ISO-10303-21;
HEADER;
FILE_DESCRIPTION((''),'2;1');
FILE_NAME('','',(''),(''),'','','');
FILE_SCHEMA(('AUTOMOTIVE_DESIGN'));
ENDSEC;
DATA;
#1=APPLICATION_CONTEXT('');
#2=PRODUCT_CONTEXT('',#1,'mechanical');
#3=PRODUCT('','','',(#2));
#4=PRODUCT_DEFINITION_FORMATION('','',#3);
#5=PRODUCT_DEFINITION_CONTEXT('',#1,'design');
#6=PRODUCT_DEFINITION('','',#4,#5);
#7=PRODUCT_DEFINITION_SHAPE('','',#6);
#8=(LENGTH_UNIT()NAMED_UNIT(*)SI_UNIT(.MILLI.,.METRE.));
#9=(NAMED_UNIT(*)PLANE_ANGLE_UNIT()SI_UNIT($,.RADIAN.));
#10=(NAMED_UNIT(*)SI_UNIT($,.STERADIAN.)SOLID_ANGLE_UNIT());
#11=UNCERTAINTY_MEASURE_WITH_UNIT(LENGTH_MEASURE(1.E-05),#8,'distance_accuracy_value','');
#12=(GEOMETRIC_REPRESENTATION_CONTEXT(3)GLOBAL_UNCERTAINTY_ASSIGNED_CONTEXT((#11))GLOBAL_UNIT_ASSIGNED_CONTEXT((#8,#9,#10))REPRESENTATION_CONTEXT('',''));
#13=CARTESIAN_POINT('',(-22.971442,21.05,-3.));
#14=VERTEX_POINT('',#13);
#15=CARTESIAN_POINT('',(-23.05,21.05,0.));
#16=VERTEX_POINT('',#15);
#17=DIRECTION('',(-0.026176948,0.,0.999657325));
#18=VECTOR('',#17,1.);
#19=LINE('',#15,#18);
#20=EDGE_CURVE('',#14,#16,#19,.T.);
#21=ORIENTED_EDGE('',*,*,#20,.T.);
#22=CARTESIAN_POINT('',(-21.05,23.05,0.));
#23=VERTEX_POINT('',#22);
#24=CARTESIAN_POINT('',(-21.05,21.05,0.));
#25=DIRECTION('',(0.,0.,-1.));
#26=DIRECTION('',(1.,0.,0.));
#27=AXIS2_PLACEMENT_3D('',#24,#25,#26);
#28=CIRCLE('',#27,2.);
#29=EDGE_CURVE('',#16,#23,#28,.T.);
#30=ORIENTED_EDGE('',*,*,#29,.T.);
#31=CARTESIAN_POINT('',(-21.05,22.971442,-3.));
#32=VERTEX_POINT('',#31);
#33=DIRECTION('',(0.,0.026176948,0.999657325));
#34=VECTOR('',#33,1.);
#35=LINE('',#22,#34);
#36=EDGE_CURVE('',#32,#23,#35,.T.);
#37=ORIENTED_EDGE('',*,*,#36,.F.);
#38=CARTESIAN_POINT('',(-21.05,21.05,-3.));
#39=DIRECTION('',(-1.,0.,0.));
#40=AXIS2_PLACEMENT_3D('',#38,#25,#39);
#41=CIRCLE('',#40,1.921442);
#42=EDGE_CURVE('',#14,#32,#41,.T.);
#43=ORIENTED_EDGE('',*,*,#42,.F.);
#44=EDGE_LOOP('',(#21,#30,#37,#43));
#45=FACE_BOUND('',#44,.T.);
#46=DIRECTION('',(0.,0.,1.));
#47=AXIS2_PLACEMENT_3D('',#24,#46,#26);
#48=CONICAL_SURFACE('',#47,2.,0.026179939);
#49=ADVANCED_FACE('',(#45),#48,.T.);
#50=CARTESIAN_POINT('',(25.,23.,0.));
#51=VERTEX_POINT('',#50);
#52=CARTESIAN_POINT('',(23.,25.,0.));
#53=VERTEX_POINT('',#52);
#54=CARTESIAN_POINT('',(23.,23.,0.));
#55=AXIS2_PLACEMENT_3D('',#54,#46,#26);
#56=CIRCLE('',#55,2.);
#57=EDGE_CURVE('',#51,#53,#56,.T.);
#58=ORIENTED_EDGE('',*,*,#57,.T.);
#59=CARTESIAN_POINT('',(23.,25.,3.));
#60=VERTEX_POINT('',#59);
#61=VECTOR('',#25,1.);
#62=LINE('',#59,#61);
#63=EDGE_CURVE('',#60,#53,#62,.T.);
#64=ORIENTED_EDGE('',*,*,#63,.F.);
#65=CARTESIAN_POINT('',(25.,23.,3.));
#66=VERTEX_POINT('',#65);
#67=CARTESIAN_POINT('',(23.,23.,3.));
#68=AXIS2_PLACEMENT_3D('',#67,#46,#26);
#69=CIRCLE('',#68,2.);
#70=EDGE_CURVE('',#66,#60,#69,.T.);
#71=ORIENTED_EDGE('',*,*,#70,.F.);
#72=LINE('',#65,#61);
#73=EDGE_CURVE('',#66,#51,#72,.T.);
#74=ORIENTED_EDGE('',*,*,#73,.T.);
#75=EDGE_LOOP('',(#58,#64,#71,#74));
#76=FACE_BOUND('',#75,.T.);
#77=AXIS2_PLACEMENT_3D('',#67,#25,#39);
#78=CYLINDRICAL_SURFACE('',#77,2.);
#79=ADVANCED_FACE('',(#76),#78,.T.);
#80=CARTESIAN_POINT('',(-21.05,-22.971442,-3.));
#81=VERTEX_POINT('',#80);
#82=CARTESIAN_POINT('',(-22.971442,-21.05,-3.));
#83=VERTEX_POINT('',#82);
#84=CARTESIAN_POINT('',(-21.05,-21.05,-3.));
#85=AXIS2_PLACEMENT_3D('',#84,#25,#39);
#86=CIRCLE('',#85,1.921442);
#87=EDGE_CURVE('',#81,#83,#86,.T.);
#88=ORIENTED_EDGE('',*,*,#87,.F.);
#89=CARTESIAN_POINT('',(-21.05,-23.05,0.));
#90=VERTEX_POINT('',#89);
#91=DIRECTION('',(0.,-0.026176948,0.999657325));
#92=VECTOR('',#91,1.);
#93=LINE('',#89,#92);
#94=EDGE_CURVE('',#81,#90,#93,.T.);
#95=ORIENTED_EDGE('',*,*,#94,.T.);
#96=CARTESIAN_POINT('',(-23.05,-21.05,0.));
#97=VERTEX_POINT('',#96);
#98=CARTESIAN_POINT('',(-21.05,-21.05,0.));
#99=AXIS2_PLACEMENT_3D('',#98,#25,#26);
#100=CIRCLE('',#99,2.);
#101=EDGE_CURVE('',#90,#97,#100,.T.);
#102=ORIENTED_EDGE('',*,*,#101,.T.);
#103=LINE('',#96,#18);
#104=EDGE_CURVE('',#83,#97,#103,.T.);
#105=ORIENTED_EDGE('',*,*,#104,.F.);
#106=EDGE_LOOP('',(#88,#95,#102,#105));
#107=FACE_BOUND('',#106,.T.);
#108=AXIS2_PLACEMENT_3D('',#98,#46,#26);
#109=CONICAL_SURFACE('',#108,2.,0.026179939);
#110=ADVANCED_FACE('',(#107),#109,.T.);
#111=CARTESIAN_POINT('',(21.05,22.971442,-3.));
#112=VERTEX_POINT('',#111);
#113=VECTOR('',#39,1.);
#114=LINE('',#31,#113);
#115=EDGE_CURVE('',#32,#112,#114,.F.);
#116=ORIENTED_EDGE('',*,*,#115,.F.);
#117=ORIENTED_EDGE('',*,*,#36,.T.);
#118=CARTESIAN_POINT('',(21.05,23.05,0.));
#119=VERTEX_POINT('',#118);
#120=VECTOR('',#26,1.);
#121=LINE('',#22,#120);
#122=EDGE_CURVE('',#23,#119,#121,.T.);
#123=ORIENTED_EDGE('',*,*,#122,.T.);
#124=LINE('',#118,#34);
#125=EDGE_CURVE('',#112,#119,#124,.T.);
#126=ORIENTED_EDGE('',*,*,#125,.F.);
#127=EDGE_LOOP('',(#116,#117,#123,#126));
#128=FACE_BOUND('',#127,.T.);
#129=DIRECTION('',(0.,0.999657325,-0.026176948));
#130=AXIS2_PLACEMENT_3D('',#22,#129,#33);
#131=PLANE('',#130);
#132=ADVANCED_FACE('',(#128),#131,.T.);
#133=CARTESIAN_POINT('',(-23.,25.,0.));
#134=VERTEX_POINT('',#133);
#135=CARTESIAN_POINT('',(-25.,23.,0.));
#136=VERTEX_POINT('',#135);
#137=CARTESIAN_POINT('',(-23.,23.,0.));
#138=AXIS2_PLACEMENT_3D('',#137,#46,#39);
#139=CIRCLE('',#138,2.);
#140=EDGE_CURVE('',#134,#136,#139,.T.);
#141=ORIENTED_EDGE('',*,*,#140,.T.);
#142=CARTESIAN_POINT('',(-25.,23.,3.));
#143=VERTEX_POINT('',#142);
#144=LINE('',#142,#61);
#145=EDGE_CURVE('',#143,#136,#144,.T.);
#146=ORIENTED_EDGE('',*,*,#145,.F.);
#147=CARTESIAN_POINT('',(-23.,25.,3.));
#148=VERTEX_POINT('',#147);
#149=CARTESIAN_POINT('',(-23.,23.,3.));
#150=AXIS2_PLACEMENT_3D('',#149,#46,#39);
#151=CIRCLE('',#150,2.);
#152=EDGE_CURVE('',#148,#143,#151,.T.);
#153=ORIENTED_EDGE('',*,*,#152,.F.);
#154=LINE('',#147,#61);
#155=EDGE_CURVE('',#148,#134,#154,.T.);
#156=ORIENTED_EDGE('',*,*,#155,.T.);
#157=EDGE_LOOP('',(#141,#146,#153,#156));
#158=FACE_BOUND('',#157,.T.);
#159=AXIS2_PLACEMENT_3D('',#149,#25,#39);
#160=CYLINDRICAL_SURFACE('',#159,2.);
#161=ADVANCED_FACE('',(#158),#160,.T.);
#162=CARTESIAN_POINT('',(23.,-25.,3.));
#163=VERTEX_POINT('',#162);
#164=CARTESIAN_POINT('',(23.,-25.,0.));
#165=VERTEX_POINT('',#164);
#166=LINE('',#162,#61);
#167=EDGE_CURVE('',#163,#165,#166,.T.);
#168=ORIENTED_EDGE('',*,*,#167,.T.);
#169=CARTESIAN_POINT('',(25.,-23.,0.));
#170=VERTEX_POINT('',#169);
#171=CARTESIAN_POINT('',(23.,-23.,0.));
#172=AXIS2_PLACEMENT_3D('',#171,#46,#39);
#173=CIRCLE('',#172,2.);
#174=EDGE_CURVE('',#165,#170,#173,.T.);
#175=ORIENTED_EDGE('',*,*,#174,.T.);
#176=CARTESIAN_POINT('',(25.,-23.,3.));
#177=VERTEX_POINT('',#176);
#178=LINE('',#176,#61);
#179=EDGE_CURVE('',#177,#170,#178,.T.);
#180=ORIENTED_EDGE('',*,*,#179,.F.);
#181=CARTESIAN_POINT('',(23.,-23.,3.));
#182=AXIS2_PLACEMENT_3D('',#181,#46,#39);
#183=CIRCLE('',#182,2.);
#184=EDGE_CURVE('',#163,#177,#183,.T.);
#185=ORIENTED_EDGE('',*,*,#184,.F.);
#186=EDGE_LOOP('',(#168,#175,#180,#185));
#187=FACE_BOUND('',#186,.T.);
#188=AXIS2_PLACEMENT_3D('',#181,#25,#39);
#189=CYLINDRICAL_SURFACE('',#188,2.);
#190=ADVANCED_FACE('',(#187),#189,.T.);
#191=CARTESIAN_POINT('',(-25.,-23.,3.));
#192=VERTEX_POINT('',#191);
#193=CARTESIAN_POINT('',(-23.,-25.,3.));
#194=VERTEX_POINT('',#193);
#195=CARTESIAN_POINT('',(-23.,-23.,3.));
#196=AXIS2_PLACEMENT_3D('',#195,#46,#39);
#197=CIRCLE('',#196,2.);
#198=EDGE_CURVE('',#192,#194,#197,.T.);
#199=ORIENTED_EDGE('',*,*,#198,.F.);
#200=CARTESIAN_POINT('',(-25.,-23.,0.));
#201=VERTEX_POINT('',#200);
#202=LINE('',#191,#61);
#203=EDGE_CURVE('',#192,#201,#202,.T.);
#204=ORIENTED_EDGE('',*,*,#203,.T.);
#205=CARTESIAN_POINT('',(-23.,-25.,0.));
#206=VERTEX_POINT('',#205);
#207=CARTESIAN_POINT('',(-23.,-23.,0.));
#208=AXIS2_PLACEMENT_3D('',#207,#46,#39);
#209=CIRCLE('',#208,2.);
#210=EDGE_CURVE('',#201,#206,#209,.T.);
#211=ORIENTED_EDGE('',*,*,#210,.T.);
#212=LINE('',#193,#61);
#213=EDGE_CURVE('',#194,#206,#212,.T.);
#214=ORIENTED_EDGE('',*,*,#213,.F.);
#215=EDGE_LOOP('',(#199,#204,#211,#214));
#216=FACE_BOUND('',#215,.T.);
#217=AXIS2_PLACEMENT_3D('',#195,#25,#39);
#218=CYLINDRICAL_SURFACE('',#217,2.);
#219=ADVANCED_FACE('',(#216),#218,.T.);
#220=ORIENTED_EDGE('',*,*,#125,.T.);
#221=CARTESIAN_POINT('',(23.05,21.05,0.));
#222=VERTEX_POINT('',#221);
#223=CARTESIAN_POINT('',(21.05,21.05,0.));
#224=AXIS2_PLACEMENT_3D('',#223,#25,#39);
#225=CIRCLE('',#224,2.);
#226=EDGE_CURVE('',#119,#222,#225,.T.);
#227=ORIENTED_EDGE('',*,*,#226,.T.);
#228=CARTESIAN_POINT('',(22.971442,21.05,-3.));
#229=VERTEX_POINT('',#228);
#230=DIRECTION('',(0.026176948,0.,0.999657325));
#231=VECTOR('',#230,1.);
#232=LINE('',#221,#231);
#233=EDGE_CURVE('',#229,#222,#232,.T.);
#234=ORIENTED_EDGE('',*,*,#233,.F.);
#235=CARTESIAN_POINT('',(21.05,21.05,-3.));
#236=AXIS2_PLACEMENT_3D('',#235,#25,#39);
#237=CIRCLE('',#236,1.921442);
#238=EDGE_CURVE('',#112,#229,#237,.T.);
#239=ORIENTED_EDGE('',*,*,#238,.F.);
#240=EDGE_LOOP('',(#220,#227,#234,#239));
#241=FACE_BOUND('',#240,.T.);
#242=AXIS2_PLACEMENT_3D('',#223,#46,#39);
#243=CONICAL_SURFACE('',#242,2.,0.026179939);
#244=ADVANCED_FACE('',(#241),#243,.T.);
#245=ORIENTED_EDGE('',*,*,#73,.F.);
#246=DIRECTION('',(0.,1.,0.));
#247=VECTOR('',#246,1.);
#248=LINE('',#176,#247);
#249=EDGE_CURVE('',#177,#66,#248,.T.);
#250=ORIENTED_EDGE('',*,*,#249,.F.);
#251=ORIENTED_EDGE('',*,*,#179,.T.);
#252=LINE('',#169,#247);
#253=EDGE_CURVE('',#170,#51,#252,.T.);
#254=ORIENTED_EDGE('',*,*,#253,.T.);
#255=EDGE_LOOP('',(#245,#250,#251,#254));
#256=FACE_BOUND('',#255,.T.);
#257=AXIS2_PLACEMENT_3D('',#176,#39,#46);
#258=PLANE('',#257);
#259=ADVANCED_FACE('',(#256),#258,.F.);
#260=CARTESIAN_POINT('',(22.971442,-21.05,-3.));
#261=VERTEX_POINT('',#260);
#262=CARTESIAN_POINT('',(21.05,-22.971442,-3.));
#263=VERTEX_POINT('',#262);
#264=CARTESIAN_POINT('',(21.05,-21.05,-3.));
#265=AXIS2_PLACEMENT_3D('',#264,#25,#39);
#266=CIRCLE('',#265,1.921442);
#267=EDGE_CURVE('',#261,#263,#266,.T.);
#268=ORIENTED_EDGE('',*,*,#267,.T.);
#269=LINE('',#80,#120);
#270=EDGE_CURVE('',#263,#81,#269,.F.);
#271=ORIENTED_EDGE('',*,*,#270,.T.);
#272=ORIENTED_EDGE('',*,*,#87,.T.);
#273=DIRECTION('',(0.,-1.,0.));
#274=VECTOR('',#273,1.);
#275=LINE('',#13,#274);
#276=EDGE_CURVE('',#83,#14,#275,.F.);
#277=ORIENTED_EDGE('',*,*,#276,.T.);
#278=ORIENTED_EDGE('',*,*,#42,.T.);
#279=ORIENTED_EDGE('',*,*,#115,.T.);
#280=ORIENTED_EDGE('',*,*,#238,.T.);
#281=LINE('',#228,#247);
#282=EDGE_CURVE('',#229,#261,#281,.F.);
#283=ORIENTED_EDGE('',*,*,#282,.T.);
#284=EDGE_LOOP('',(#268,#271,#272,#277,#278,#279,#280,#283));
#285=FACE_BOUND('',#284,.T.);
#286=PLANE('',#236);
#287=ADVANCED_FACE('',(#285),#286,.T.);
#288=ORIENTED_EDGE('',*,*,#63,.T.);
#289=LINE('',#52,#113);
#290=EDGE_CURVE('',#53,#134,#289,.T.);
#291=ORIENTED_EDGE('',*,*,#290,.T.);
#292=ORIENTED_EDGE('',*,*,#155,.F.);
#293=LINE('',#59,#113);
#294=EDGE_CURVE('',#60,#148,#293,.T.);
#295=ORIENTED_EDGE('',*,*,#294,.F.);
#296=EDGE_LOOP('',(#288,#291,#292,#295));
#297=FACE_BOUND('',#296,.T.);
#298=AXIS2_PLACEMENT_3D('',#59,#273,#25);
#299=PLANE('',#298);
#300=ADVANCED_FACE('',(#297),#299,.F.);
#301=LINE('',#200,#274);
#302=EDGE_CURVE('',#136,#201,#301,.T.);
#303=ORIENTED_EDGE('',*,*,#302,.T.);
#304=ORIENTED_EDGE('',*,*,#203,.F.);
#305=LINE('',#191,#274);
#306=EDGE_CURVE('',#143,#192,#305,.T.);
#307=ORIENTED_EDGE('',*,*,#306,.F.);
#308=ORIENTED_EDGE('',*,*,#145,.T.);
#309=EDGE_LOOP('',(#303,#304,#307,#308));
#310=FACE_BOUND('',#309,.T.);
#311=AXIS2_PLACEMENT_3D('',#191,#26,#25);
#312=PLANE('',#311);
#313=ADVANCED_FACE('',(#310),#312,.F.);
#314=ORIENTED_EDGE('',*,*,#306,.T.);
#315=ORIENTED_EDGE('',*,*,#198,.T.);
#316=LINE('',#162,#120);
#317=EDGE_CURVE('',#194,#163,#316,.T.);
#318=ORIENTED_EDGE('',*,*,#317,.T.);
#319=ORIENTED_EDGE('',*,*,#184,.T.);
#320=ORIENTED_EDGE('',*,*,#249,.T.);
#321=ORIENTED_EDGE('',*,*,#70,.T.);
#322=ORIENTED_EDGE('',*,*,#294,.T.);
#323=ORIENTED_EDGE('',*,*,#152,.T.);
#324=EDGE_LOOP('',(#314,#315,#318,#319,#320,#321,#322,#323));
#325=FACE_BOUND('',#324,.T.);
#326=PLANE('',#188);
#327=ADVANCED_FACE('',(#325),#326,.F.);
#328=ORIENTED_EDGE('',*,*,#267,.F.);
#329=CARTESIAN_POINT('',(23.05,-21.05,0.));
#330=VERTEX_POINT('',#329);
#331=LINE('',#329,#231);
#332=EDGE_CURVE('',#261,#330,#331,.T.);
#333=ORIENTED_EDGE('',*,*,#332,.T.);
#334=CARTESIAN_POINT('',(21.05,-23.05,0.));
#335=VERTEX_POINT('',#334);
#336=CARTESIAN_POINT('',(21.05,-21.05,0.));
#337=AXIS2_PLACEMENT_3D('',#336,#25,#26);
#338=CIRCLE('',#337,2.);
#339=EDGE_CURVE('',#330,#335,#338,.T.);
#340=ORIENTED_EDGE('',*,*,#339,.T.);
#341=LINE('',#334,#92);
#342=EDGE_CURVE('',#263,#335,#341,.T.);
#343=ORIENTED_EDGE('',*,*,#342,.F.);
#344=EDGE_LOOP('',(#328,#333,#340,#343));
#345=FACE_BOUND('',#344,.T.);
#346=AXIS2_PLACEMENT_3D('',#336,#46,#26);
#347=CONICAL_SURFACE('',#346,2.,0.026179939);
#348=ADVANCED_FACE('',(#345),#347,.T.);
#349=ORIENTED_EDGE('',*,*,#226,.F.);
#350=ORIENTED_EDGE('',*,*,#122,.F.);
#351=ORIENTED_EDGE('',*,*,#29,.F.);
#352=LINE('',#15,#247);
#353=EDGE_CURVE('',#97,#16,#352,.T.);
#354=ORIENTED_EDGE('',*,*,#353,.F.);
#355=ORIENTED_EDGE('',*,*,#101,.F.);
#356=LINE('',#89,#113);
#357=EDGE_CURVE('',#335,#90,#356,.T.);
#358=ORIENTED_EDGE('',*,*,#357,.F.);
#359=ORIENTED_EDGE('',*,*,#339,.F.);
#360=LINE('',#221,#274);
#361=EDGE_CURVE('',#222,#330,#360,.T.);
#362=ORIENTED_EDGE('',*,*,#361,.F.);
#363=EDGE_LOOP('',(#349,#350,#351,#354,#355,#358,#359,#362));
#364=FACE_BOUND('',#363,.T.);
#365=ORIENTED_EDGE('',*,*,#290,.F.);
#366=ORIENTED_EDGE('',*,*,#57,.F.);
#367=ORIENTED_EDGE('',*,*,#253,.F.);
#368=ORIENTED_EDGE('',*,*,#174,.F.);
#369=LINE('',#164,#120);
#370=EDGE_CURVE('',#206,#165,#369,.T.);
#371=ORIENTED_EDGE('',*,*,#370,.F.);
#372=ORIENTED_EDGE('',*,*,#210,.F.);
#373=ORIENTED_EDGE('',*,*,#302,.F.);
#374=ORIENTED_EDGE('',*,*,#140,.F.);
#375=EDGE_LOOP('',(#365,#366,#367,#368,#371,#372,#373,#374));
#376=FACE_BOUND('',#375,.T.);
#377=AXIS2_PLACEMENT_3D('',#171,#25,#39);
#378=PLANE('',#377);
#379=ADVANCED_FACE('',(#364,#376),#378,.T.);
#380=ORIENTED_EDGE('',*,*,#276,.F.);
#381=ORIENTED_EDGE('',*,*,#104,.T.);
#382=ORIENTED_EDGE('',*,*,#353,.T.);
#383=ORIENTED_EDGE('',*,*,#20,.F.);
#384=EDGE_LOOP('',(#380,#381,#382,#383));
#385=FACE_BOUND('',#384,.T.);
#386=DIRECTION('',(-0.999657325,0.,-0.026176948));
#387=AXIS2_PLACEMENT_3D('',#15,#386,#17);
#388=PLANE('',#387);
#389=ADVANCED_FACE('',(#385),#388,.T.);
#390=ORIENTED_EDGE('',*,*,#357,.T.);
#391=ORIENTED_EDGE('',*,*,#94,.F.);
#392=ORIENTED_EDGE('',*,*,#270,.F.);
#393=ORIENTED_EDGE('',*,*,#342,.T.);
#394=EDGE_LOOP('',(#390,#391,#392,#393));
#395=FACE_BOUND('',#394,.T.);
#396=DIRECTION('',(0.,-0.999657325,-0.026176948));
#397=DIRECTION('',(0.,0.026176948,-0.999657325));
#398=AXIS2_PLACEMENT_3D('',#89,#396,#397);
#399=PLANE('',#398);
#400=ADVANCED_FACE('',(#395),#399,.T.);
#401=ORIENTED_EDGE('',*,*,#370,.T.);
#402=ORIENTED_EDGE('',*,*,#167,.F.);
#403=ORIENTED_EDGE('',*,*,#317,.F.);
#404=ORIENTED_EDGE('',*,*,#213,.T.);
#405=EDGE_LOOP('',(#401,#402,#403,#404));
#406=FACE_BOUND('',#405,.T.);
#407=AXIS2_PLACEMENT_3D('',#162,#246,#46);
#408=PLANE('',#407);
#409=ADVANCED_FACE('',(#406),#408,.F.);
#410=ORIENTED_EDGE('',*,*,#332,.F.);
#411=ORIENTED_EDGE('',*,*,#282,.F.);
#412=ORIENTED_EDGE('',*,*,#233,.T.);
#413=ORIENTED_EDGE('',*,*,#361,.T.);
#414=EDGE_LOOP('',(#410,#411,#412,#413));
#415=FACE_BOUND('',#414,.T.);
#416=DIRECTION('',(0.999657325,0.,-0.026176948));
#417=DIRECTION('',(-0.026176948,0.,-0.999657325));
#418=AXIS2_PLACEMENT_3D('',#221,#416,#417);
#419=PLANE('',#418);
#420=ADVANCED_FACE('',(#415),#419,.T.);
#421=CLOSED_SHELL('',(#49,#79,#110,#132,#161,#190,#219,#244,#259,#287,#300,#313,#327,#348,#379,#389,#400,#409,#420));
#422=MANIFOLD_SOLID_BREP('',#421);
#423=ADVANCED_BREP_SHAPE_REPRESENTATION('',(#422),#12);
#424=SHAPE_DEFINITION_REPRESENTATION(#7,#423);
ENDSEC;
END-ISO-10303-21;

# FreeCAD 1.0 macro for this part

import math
import FreeCAD as App
import Part
import Sketcher

V = App.Vector

doc = App.newDocument("Part")
params = doc.addObject("Spreadsheet::Sheet", "Params")
for row, (alias, value) in enumerate([
    ("sketch1_radius", "2 mm"),
    ("sketch1_width", "46 mm"),
    ("pad1_length", "3 mm"),
    ("sketch2_radius", "2 mm"),
    ("sketch2_width", "42.1 mm"),
    ("pad2_length", "3 mm"),
    ("pad2_taper", "-1.5 deg"),
], start=1):
    params.set(f"A{row}", alias)
    params.set(f"B{row}", "=" + value)
    params.setAlias(f"B{row}", alias)

body = doc.addObject("PartDesign::Body", "Body")

# Sketch on XY plane
sketch1 = doc.addObject("Sketcher::SketchObject", "Sketch")
body.addObject(sketch1)
sketch1.AttachmentSupport = (doc.XY_Plane, [""])
sketch1.MapMode = "FlatFace"
sketch1.addGeometry([
    Part.LineSegment(V(25, -23, 0), V(25, 23, 0)),  # 0
    Part.ArcOfCircle(Part.Circle(V(23, 23, 0), V(0, 0, 1), 2), math.radians(0), math.radians(90)),  # 1
    Part.LineSegment(V(23, 25, 0), V(-23, 25, 0)),  # 2
    Part.ArcOfCircle(Part.Circle(V(-23, 23, 0), V(0, 0, 1), 2), math.radians(90), math.radians(180)),  # 3
    Part.LineSegment(V(-25, 23, 0), V(-25, -23, 0)),  # 4
    Part.ArcOfCircle(Part.Circle(V(-23, -23, 0), V(0, 0, 1), 2), math.radians(-180), math.radians(-90)),  # 5
    Part.LineSegment(V(-23, -25, 0), V(23, -25, 0)),  # 6
    Part.ArcOfCircle(Part.Circle(V(23, -23, 0), V(0, 0, 1), 2), math.radians(-90), math.radians(0)),  # 7
], False)
sketch1.addConstraint([
    Sketcher.Constraint("Tangent", 0, 2, 1, 1),
    Sketcher.Constraint("Tangent", 1, 2, 2, 1),
    Sketcher.Constraint("Tangent", 2, 2, 3, 1),
    Sketcher.Constraint("Tangent", 3, 2, 4, 1),
    Sketcher.Constraint("Tangent", 4, 2, 5, 1),
    Sketcher.Constraint("Tangent", 5, 2, 6, 1),
    Sketcher.Constraint("Tangent", 6, 2, 7, 1),
    Sketcher.Constraint("Tangent", 7, 2, 0, 1),
    Sketcher.Constraint("Vertical", 0),
    Sketcher.Constraint("Horizontal", 2),
    Sketcher.Constraint("Vertical", 4),
    Sketcher.Constraint("Horizontal", 6),
    Sketcher.Constraint("Equal", 1, 3),
    Sketcher.Constraint("Equal", 3, 5),
    Sketcher.Constraint("Equal", 5, 7),
    Sketcher.Constraint("Symmetric", 1, 3, 5, 3, -1, 1),
    Sketcher.Constraint("Equal", 6, 0),
    Sketcher.Constraint("Radius", 1, 2.0),
    Sketcher.Constraint("DistanceX", 2, 2, 2, 1, 46.0),
])
sketch1.setExpression("Constraints[17]", "Params.sketch1_radius")
sketch1.setExpression("Constraints[18]", "Params.sketch1_width")
pad1 = doc.addObject("PartDesign::Pad", "Pad")
body.addObject(pad1)
pad1.Profile = sketch1
pad1.setExpression("Length", "Params.pad1_length")

# Sketch on XY plane
sketch2 = doc.addObject("Sketcher::SketchObject", "Sketch001")
body.addObject(sketch2)
sketch2.AttachmentSupport = (doc.XY_Plane, [""])
sketch2.MapMode = "FlatFace"
sketch2.addGeometry([
    Part.LineSegment(V(-21.1, 23.1, 0), V(21.1, 23.1, 0)),  # 0
    Part.ArcOfCircle(Part.Circle(V(21, 21, 0), V(0, 0, 1), 2), math.radians(0), math.radians(90)),  # 1
    Part.LineSegment(V(23.1, 21.1, 0), V(23.1, -21.1, 0)),  # 2
    Part.ArcOfCircle(Part.Circle(V(21, -21, 0), V(0, 0, 1), 2), math.radians(-90), math.radians(0)),  # 3
    Part.LineSegment(V(21.1, -23.1, 0), V(-21.1, -23.1, 0)),  # 4
    Part.ArcOfCircle(Part.Circle(V(-21, -21, 0), V(0, 0, 1), 2), math.radians(-180), math.radians(-90)),  # 5
    Part.LineSegment(V(-23.1, -21.1, 0), V(-23.1, 21.1, 0)),  # 6
    Part.ArcOfCircle(Part.Circle(V(-21, 21, 0), V(0, 0, 1), 2), math.radians(90), math.radians(180)),  # 7
], False)
sketch2.addConstraint([
    Sketcher.Constraint("Tangent", 0, 2, 1, 2),
    Sketcher.Constraint("Tangent", 1, 1, 2, 1),
    Sketcher.Constraint("Tangent", 2, 2, 3, 2),
    Sketcher.Constraint("Tangent", 3, 1, 4, 1),
    Sketcher.Constraint("Tangent", 4, 2, 5, 2),
    Sketcher.Constraint("Tangent", 5, 1, 6, 1),
    Sketcher.Constraint("Tangent", 6, 2, 7, 2),
    Sketcher.Constraint("Tangent", 7, 1, 0, 1),
    Sketcher.Constraint("Horizontal", 0),
    Sketcher.Constraint("Vertical", 2),
    Sketcher.Constraint("Horizontal", 4),
    Sketcher.Constraint("Vertical", 6),
    Sketcher.Constraint("Equal", 1, 3),
    Sketcher.Constraint("Equal", 3, 5),
    Sketcher.Constraint("Equal", 5, 7),
    Sketcher.Constraint("Symmetric", 1, 3, 5, 3, -1, 1),
    Sketcher.Constraint("Equal", 4, 2),
    Sketcher.Constraint("Radius", 1, 2.0),
    Sketcher.Constraint("DistanceX", 0, 1, 0, 2, 42.1),
])
sketch2.setExpression("Constraints[17]", "Params.sketch2_radius")
sketch2.setExpression("Constraints[18]", "Params.sketch2_width")
pad2 = doc.addObject("PartDesign::Pad", "Pad001")
body.addObject(pad2)
pad2.Profile = sketch2
pad2.setExpression("Length", "Params.pad2_length")
pad2.Reversed = True
pad2.setExpression("TaperAngle", "Params.pad2_taper")

doc.recompute()
